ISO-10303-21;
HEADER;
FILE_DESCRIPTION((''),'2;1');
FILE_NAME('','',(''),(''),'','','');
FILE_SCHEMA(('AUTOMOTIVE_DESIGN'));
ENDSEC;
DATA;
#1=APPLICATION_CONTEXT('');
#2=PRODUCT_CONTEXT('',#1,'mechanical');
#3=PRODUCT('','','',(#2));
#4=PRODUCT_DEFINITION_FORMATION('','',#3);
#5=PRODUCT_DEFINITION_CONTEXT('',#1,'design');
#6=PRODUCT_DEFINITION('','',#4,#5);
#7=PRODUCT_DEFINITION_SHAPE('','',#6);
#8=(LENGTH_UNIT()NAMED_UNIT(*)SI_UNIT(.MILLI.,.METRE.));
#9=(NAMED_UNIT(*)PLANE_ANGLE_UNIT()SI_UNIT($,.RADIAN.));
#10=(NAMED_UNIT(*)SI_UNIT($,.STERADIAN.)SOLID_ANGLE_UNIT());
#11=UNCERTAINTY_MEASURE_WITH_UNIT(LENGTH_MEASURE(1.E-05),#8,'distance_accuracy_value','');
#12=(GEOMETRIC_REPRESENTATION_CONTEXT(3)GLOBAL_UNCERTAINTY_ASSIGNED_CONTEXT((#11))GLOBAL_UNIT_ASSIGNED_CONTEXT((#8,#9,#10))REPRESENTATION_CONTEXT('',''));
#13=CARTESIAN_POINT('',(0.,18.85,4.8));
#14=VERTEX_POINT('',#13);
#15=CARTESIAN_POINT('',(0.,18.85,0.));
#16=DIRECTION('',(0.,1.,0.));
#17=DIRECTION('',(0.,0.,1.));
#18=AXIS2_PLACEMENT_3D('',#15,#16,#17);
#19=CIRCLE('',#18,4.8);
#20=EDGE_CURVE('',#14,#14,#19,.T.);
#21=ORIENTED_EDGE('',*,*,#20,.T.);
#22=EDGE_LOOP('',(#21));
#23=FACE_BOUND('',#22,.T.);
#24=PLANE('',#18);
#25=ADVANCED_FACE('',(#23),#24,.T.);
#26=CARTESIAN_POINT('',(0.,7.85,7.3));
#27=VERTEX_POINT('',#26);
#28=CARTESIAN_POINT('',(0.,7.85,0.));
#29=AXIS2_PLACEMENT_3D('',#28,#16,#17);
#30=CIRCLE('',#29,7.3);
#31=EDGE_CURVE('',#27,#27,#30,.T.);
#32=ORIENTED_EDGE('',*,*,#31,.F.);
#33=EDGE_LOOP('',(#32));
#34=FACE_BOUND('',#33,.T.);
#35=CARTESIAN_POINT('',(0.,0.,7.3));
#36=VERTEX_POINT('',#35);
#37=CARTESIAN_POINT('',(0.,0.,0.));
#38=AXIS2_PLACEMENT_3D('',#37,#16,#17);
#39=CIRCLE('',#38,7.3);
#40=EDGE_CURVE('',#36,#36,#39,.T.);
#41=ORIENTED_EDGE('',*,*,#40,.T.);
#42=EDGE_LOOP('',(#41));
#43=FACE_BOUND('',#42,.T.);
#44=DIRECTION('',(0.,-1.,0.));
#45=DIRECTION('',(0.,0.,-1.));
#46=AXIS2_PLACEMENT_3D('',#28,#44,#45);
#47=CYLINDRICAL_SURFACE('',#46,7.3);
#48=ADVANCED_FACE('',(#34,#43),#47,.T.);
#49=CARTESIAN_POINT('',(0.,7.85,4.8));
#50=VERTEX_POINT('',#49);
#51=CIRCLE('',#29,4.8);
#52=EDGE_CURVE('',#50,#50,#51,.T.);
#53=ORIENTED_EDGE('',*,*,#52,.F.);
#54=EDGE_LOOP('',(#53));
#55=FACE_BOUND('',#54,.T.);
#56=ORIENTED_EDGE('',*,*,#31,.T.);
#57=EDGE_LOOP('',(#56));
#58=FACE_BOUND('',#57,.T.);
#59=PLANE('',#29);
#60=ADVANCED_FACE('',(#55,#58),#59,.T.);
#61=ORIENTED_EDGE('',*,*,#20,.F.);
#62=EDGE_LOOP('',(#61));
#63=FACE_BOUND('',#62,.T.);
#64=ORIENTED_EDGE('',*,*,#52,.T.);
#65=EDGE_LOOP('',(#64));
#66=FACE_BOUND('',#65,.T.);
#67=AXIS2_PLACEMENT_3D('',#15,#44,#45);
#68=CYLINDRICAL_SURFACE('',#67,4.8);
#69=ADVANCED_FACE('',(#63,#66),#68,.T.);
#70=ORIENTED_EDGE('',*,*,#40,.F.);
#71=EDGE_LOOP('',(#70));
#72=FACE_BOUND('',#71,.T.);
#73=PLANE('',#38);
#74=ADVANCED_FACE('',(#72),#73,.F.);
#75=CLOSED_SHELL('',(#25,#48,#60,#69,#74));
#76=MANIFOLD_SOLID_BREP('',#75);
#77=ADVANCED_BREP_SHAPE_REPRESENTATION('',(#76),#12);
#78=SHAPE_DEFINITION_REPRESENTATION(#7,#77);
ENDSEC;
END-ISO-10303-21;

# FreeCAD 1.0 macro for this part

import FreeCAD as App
import Part
import Sketcher

doc = App.newDocument("Part")
body = doc.addObject("PartDesign::Body", "Body")

# Sketch on XZ plane
sketch1 = body.newObject("Sketcher::SketchObject", "Sketch")
sketch1.AttachmentSupport = (doc.getObject("XZ_Plane"), [""])
sketch1.MapMode = "FlatFace"
sketch1.addGeometry(Part.Circle(App.Vector(0, 0, 0), App.Vector(0, 0, 1), 7.3), False)
sketch1.addConstraint([
    Sketcher.Constraint("Coincident", 0, 3, -1, 1),
    Sketcher.Constraint("Diameter", 0, 14.6),
])
pad1 = body.newObject("PartDesign::Pad", "Pad")
pad1.Profile = sketch1
pad1.Length = 7.85
pad1.Reversed = True

# Sketch on XZ plane
sketch2 = body.newObject("Sketcher::SketchObject", "Sketch001")
sketch2.AttachmentSupport = (doc.getObject("XZ_Plane"), [""])
sketch2.MapMode = "FlatFace"
sketch2.AttachmentOffset = App.Placement(App.Vector(0, 0, -7.85), App.Rotation())
sketch2.addGeometry(Part.Circle(App.Vector(0, 0, 0), App.Vector(0, 0, 1), 4.8), False)
sketch2.addConstraint([
    Sketcher.Constraint("Coincident", 0, 3, -1, 1),
    Sketcher.Constraint("Diameter", 0, 9.6),
])
pad2 = body.newObject("PartDesign::Pad", "Pad001")
pad2.Profile = sketch2
pad2.Length = 11
pad2.Reversed = True

doc.recompute()
